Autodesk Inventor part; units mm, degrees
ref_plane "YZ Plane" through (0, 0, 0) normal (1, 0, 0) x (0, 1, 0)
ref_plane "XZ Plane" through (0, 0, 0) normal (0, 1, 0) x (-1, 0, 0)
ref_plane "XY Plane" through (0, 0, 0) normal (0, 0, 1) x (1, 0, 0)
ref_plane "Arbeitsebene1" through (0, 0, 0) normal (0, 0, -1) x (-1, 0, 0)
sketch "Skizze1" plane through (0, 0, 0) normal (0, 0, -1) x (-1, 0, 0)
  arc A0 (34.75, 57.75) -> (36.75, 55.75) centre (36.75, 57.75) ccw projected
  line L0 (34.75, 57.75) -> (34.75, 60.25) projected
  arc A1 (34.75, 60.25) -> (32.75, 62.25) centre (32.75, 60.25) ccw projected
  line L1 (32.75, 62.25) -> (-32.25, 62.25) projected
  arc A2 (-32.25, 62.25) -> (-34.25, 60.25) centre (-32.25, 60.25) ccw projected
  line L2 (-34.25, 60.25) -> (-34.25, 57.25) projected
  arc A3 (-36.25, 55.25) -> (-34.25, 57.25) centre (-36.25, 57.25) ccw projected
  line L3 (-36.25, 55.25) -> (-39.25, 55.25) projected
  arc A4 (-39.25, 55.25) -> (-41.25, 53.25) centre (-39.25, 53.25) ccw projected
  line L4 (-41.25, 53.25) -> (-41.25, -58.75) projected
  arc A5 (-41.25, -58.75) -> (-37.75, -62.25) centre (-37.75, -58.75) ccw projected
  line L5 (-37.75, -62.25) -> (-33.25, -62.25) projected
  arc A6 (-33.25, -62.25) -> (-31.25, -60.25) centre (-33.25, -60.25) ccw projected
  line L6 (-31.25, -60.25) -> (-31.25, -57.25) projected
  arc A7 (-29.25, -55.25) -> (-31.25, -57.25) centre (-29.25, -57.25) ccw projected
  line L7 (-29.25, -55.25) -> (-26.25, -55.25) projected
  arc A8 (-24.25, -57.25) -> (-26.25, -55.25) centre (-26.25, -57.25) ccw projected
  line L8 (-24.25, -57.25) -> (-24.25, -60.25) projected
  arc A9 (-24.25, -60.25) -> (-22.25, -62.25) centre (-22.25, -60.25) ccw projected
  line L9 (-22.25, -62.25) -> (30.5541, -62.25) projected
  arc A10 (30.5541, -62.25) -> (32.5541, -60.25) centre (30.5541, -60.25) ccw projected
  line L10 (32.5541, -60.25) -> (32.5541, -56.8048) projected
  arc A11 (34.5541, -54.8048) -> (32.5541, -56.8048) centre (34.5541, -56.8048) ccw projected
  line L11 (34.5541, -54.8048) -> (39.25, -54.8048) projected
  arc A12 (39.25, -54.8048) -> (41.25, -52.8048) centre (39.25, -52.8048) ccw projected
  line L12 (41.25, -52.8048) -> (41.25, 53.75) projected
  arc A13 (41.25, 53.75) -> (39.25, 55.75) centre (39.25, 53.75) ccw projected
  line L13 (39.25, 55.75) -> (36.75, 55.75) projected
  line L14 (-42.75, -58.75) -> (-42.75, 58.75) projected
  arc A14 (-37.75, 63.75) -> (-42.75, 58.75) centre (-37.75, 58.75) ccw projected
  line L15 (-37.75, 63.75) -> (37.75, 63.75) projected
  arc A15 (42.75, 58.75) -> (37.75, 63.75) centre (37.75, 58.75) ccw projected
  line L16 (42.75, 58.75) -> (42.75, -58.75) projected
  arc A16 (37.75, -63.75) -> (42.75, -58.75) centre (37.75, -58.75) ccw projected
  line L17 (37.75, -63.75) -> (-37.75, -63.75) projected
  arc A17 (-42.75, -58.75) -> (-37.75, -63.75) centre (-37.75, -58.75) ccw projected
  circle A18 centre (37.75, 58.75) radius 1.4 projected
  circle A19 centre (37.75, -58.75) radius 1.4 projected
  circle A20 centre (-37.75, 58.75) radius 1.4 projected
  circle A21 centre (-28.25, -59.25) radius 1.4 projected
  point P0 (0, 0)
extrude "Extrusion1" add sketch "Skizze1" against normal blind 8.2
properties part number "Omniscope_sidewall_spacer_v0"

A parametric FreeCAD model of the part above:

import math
import FreeCAD as App
import Part
import Sketcher

V = App.Vector

doc = App.newDocument("Part")
body = doc.addObject("PartDesign::Body", "Body")

# Sketch on XY plane
sketch1 = body.newObject("Sketcher::SketchObject", "Sketch")
sketch1.AttachmentSupport = (doc.getObject("XY_Plane"), [""])
sketch1.MapMode = "FlatFace"
sketch1.addGeometry([
    Part.LineSegment(V(42.8, 58.8, 0), V(42.8, -58.8, 0)),  # 0
    Part.ArcOfCircle(Part.Circle(V(37.8, -58.8, 0), V(0, 0, 1), 5), math.radians(-90), math.radians(0)),  # 1
    Part.LineSegment(V(37.8, -63.8, 0), V(-37.8, -63.8, 0)),  # 2
    Part.ArcOfCircle(Part.Circle(V(-37.8, -58.8, 0), V(0, 0, 1), 5), math.radians(180), math.radians(270)),  # 3
    Part.LineSegment(V(-42.8, -58.8, 0), V(-42.8, 58.8, 0)),  # 4
    Part.ArcOfCircle(Part.Circle(V(-37.8, 58.8, 0), V(0, 0, 1), 5), math.radians(90), math.radians(180)),  # 5
    Part.LineSegment(V(-37.8, 63.8, 0), V(37.8, 63.8, 0)),  # 6
    Part.ArcOfCircle(Part.Circle(V(37.8, 58.8, 0), V(0, 0, 1), 5), math.radians(0), math.radians(90)),  # 7
    Part.Circle(V(28.2, -59.2, 0), V(0, 0, 1), 1.4),  # 8
    Part.Circle(V(-37.8, -58.8, 0), V(0, 0, 1), 1.4),  # 9
    Part.Circle(V(37.8, 58.8, 0), V(0, 0, 1), 1.4),  # 10
    Part.LineSegment(V(-34.8, 60.2, 0), V(-34.8, 57.8, 0)),  # 11
    Part.ArcOfCircle(Part.Circle(V(-36.8, 57.8, 0), V(0, 0, 1), 2), math.radians(-90), math.radians(0)),  # 12
    Part.LineSegment(V(-36.8, 55.8, 0), V(-39.2, 55.8, 0)),  # 13
    Part.ArcOfCircle(Part.Circle(V(-39.2, 53.8, 0), V(0, 0, 1), 2), math.radians(90), math.radians(180)),  # 14
    Part.LineSegment(V(-41.2, 53.8, 0), V(-41.2, -52.8, 0)),  # 15
    Part.ArcOfCircle(Part.Circle(V(-39.2, -52.8, 0), V(0, 0, 1), 2), math.radians(180), math.radians(270)),  # 16
    Part.LineSegment(V(-39.2, -54.8, 0), V(-34.6, -54.8, 0)),  # 17
    Part.ArcOfCircle(Part.Circle(V(-34.6, -56.8, 0), V(0, 0, 1), 2), math.radians(0), math.radians(90)),  # 18
    Part.LineSegment(V(-32.6, -56.8, 0), V(-32.6, -60.2, 0)),  # 19
    Part.ArcOfCircle(Part.Circle(V(-30.6, -60.2, 0), V(0, 0, 1), 2), math.radians(180), math.radians(270)),  # 20
    Part.LineSegment(V(-30.6, -62.2, 0), V(22.2, -62.2, 0)),  # 21
    Part.ArcOfCircle(Part.Circle(V(22.2, -60.2, 0), V(0, 0, 1), 2), math.radians(-90), math.radians(0)),  # 22
    Part.LineSegment(V(24.2, -60.2, 0), V(24.2, -57.2, 0)),  # 23
    Part.ArcOfCircle(Part.Circle(V(26.2, -57.2, 0), V(0, 0, 1), 2), math.radians(90), math.radians(180)),  # 24
    Part.LineSegment(V(26.2, -55.2, 0), V(29.2, -55.2, 0)),  # 25
    Part.ArcOfCircle(Part.Circle(V(29.2, -57.2, 0), V(0, 0, 1), 2), math.radians(0), math.radians(90)),  # 26
    Part.LineSegment(V(31.2, -57.2, 0), V(31.2, -60.2, 0)),  # 27
    Part.ArcOfCircle(Part.Circle(V(33.2, -60.2, 0), V(0, 0, 1), 2), math.radians(180), math.radians(270)),  # 28
    Part.LineSegment(V(33.2, -62.2, 0), V(37.8, -62.2, 0)),  # 29
    Part.ArcOfCircle(Part.Circle(V(37.8, -58.8, 0), V(0, 0, 1), 3.5), math.radians(-90), math.radians(0)),  # 30
    Part.LineSegment(V(41.2, -58.8, 0), V(41.2, 53.2, 0)),  # 31
    Part.ArcOfCircle(Part.Circle(V(39.2, 53.2, 0), V(0, 0, 1), 2), math.radians(0), math.radians(90)),  # 32
    Part.LineSegment(V(39.2, 55.2, 0), V(36.2, 55.2, 0)),  # 33
    Part.ArcOfCircle(Part.Circle(V(36.2, 57.2, 0), V(0, 0, 1), 2), math.radians(180), math.radians(270)),  # 34
    Part.LineSegment(V(34.2, 57.2, 0), V(34.2, 60.2, 0)),  # 35
    Part.ArcOfCircle(Part.Circle(V(32.2, 60.2, 0), V(0, 0, 1), 2), math.radians(0), math.radians(90)),  # 36
    Part.LineSegment(V(32.2, 62.2, 0), V(-32.8, 62.2, 0)),  # 37
    Part.ArcOfCircle(Part.Circle(V(-32.8, 60.2, 0), V(0, 0, 1), 2), math.radians(90), math.radians(180)),  # 38
    Part.Circle(V(-37.8, 58.8, 0), V(0, 0, 1), 1.4),  # 39
], False)
sketch1.addConstraint([
    Sketcher.Constraint("Tangent", 0, 2, 1, 2),
    Sketcher.Constraint("Tangent", 1, 1, 2, 1),
    Sketcher.Constraint("Tangent", 2, 2, 3, 2),
    Sketcher.Constraint("Tangent", 3, 1, 4, 1),
    Sketcher.Constraint("Tangent", 4, 2, 5, 2),
    Sketcher.Constraint("Tangent", 5, 1, 6, 1),
    Sketcher.Constraint("Tangent", 6, 2, 7, 2),
    Sketcher.Constraint("Tangent", 7, 1, 0, 1),
    Sketcher.Constraint("Tangent", 11, 2, 12, 2),
    Sketcher.Constraint("Tangent", 12, 1, 13, 1),
    Sketcher.Constraint("Tangent", 13, 2, 14, 1),
    Sketcher.Constraint("Tangent", 14, 2, 15, 1),
    Sketcher.Constraint("Tangent", 15, 2, 16, 1),
    Sketcher.Constraint("Tangent", 16, 2, 17, 1),
    Sketcher.Constraint("Tangent", 17, 2, 18, 2),
    Sketcher.Constraint("Tangent", 18, 1, 19, 1),
    Sketcher.Constraint("Tangent", 19, 2, 20, 1),
    Sketcher.Constraint("Tangent", 20, 2, 21, 1),
    Sketcher.Constraint("Tangent", 21, 2, 22, 1),
    Sketcher.Constraint("Tangent", 22, 2, 23, 1),
    Sketcher.Constraint("Tangent", 23, 2, 24, 2),
    Sketcher.Constraint("Tangent", 24, 1, 25, 1),
    Sketcher.Constraint("Tangent", 25, 2, 26, 2),
    Sketcher.Constraint("Tangent", 26, 1, 27, 1),
    Sketcher.Constraint("Tangent", 27, 2, 28, 1),
    Sketcher.Constraint("Tangent", 28, 2, 29, 1),
    Sketcher.Constraint("Tangent", 29, 2, 30, 1),
    Sketcher.Constraint("Tangent", 30, 2, 31, 1),
    Sketcher.Constraint("Tangent", 31, 2, 32, 1),
    Sketcher.Constraint("Tangent", 32, 2, 33, 1),
    Sketcher.Constraint("Tangent", 33, 2, 34, 2),
    Sketcher.Constraint("Tangent", 34, 1, 35, 1),
    Sketcher.Constraint("Tangent", 35, 2, 36, 1),
    Sketcher.Constraint("Tangent", 36, 2, 37, 1),
    Sketcher.Constraint("Tangent", 37, 2, 38, 1),
    Sketcher.Constraint("Tangent", 38, 2, 11, 1),
    Sketcher.Constraint("Vertical", 0),
    Sketcher.Constraint("Horizontal", 2),
    Sketcher.Constraint("Vertical", 4),
    Sketcher.Constraint("Horizontal", 6),
    Sketcher.Constraint("Vertical", 11),
    Sketcher.Constraint("Horizontal", 13),
    Sketcher.Constraint("Vertical", 15),
    Sketcher.Constraint("Horizontal", 17),
    Sketcher.Constraint("Vertical", 19),
    Sketcher.Constraint("Horizontal", 21),
    Sketcher.Constraint("Vertical", 23),
    Sketcher.Constraint("Horizontal", 25),
    Sketcher.Constraint("Vertical", 27),
    Sketcher.Constraint("Horizontal", 29),
    Sketcher.Constraint("Vertical", 31),
    Sketcher.Constraint("Horizontal", 33),
    Sketcher.Constraint("Vertical", 35),
    Sketcher.Constraint("Horizontal", 37),
    Sketcher.Constraint("Coincident", 9, 3, 3, 3),
    Sketcher.Constraint("Coincident", 10, 3, 7, 3),
    Sketcher.Constraint("Coincident", 30, 3, 1, 3),
    Sketcher.Constraint("Coincident", 39, 3, 5, 3),
    Sketcher.Constraint("Equal", 1, 3),
    Sketcher.Constraint("Equal", 3, 5),
    Sketcher.Constraint("Equal", 5, 7),
    Sketcher.Constraint("Equal", 8, 9),
    Sketcher.Constraint("Equal", 9, 10),
    Sketcher.Constraint("Equal", 12, 14),
    Sketcher.Constraint("Equal", 14, 16),
    Sketcher.Constraint("Equal", 16, 18),
    Sketcher.Constraint("Equal", 18, 20),
    Sketcher.Constraint("Equal", 20, 22),
    Sketcher.Constraint("Equal", 22, 24),
    Sketcher.Constraint("Equal", 24, 26),
    Sketcher.Constraint("Equal", 26, 28),
    Sketcher.Constraint("Equal", 28, 32),
    Sketcher.Constraint("Equal", 32, 34),
    Sketcher.Constraint("Equal", 34, 36),
    Sketcher.Constraint("Equal", 36, 38),
    Sketcher.Constraint("Equal", 10, 39),
    Sketcher.Constraint("Symmetric", 1, 3, 5, 3, -1, 1),
    Sketcher.Constraint("Horizontal", 22, 3, 28, 3),
    Sketcher.Constraint("Equal", 25, 33),
    Sketcher.Constraint("Equal", 13, 11),
    Sketcher.Constraint("Equal", 33, 23),
    Sketcher.Constraint("Equal", 27, 35),
    Sketcher.Constraint("Radius", 1, 5.0),
    Sketcher.Constraint("Radius", 12, 2.0),
    Sketcher.Constraint("Diameter", 8, 2.8),
    Sketcher.Constraint("Radius", 30, 3.5),
    Sketcher.Constraint("DistanceX", 25, 1, 25, 2, 3.0),
    Sketcher.Constraint("DistanceX", 37, 2, 37, 1, 65.0),
    Sketcher.Constraint("DistanceY", 31, 1, 31, 2, 112.0),
    Sketcher.Constraint("DistanceX", 2, 2, 2, 1, 75.5),
    Sketcher.Constraint("DistanceX", 13, 2, 13, 1, 2.5),
    Sketcher.Constraint("DistanceX", 29, 1, 29, 2, 4.5),
    Sketcher.Constraint("DistanceY", 0, 2, 0, 1, 117.5),
    Sketcher.Constraint("DistanceX", 3, 3, 8, 3, 66.0),
    Sketcher.Constraint("DistanceY", 8, 3, 7, 3, 118.0),
    Sketcher.Constraint("DistanceX", 17, 1, 17, 2, 4.696),
    Sketcher.Constraint("DistanceY", 15, 2, 15, 1, 106.5548),
])
pad1 = body.newObject("PartDesign::Pad", "Pad")
pad1.Profile = sketch1
pad1.Length = 8.2

doc.recompute()
